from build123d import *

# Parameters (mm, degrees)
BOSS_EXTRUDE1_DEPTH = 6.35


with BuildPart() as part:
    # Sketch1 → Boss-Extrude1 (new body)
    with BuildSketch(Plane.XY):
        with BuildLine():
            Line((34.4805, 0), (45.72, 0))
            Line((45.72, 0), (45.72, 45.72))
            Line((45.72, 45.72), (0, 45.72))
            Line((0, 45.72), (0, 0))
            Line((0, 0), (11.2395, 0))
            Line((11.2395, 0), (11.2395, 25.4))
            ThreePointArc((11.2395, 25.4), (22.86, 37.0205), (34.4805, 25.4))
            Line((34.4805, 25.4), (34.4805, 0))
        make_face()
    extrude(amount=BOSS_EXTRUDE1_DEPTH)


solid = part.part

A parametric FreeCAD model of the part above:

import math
import FreeCAD as App
import Part
import Sketcher
from FreeCAD import Vector
Q = App.Units.Quantity

doc = App.newDocument("Part")
body = doc.addObject("PartDesign::Body", "Body")

sketch1 = doc.addObject("Sketcher::SketchObject", "Sketch")
body.addObject(sketch1)
sketch1.AttachmentSupport = (doc.XY_Plane, [""])
sketch1.MapMode = "FlatFace"
sketch1.addGeometry([
    Part.LineSegment(Vector(34.4805, 0, 0), Vector(45.72, 0, 0)),
    Part.LineSegment(Vector(45.72, 0, 0), Vector(45.72, 45.72, 0)),
    Part.LineSegment(Vector(45.72, 45.72, 0), Vector(0, 45.72, 0)),
    Part.LineSegment(Vector(0, 45.72, 0), Vector(0, 0, 0)),
    Part.LineSegment(Vector(0, 0, 0), Vector(11.2395, 0, 0)),
    Part.LineSegment(Vector(11.2395, 0, 0), Vector(11.2395, 25.4, 0)),
    Part.ArcOfCircle(Part.Circle(Vector(22.86, 25.4, 0), Vector(0, 0, 1), 11.6205), math.radians(0), math.radians(180)),
    Part.LineSegment(Vector(34.4805, 25.4, 0), Vector(34.4805, 0, 0)),
], False)
sketch1.addConstraint([
    Sketcher.Constraint("Coincident", 0, 2, 1, 1),
    Sketcher.Constraint("Coincident", 1, 2, 2, 1),
    Sketcher.Constraint("Coincident", 2, 2, 3, 1),
    Sketcher.Constraint("Coincident", 3, 2, 4, 1),
    Sketcher.Constraint("Coincident", 4, 2, 5, 1),
    Sketcher.Constraint("Tangent", 5, 2, 6, 2),
    Sketcher.Constraint("Tangent", 6, 1, 7, 1),
    Sketcher.Constraint("Coincident", 7, 2, 0, 1),
    Sketcher.Constraint("Horizontal", 0),
    Sketcher.Constraint("Vertical", 1),
    Sketcher.Constraint("Horizontal", 2),
    Sketcher.Constraint("Vertical", 3),
    Sketcher.Constraint("Horizontal", 4),
    Sketcher.Constraint("Vertical", 5),
    Sketcher.Constraint("Vertical", 7),
    Sketcher.Constraint("Coincident", 3, 2, -1, 1),
    Sketcher.Constraint("PointOnObject", 0, 2, -1),
    Sketcher.Constraint("Equal", 0, 4),
    Sketcher.Constraint("Equal", 2, 1),
    Sketcher.Constraint("DistanceY", 5, 1, 5, 2, Q("1 in")),
    Sketcher.Constraint("DistanceX", 2, 2, 2, 1, Q("1.8 in")),
    Sketcher.Constraint("Radius", 6, Q("0.4575 in")),
])
pad1 = doc.addObject("PartDesign::Pad", "Pad")
body.addObject(pad1)
pad1.Profile = sketch1
pad1.Length = Q("0.25 in")

doc.recompute()
